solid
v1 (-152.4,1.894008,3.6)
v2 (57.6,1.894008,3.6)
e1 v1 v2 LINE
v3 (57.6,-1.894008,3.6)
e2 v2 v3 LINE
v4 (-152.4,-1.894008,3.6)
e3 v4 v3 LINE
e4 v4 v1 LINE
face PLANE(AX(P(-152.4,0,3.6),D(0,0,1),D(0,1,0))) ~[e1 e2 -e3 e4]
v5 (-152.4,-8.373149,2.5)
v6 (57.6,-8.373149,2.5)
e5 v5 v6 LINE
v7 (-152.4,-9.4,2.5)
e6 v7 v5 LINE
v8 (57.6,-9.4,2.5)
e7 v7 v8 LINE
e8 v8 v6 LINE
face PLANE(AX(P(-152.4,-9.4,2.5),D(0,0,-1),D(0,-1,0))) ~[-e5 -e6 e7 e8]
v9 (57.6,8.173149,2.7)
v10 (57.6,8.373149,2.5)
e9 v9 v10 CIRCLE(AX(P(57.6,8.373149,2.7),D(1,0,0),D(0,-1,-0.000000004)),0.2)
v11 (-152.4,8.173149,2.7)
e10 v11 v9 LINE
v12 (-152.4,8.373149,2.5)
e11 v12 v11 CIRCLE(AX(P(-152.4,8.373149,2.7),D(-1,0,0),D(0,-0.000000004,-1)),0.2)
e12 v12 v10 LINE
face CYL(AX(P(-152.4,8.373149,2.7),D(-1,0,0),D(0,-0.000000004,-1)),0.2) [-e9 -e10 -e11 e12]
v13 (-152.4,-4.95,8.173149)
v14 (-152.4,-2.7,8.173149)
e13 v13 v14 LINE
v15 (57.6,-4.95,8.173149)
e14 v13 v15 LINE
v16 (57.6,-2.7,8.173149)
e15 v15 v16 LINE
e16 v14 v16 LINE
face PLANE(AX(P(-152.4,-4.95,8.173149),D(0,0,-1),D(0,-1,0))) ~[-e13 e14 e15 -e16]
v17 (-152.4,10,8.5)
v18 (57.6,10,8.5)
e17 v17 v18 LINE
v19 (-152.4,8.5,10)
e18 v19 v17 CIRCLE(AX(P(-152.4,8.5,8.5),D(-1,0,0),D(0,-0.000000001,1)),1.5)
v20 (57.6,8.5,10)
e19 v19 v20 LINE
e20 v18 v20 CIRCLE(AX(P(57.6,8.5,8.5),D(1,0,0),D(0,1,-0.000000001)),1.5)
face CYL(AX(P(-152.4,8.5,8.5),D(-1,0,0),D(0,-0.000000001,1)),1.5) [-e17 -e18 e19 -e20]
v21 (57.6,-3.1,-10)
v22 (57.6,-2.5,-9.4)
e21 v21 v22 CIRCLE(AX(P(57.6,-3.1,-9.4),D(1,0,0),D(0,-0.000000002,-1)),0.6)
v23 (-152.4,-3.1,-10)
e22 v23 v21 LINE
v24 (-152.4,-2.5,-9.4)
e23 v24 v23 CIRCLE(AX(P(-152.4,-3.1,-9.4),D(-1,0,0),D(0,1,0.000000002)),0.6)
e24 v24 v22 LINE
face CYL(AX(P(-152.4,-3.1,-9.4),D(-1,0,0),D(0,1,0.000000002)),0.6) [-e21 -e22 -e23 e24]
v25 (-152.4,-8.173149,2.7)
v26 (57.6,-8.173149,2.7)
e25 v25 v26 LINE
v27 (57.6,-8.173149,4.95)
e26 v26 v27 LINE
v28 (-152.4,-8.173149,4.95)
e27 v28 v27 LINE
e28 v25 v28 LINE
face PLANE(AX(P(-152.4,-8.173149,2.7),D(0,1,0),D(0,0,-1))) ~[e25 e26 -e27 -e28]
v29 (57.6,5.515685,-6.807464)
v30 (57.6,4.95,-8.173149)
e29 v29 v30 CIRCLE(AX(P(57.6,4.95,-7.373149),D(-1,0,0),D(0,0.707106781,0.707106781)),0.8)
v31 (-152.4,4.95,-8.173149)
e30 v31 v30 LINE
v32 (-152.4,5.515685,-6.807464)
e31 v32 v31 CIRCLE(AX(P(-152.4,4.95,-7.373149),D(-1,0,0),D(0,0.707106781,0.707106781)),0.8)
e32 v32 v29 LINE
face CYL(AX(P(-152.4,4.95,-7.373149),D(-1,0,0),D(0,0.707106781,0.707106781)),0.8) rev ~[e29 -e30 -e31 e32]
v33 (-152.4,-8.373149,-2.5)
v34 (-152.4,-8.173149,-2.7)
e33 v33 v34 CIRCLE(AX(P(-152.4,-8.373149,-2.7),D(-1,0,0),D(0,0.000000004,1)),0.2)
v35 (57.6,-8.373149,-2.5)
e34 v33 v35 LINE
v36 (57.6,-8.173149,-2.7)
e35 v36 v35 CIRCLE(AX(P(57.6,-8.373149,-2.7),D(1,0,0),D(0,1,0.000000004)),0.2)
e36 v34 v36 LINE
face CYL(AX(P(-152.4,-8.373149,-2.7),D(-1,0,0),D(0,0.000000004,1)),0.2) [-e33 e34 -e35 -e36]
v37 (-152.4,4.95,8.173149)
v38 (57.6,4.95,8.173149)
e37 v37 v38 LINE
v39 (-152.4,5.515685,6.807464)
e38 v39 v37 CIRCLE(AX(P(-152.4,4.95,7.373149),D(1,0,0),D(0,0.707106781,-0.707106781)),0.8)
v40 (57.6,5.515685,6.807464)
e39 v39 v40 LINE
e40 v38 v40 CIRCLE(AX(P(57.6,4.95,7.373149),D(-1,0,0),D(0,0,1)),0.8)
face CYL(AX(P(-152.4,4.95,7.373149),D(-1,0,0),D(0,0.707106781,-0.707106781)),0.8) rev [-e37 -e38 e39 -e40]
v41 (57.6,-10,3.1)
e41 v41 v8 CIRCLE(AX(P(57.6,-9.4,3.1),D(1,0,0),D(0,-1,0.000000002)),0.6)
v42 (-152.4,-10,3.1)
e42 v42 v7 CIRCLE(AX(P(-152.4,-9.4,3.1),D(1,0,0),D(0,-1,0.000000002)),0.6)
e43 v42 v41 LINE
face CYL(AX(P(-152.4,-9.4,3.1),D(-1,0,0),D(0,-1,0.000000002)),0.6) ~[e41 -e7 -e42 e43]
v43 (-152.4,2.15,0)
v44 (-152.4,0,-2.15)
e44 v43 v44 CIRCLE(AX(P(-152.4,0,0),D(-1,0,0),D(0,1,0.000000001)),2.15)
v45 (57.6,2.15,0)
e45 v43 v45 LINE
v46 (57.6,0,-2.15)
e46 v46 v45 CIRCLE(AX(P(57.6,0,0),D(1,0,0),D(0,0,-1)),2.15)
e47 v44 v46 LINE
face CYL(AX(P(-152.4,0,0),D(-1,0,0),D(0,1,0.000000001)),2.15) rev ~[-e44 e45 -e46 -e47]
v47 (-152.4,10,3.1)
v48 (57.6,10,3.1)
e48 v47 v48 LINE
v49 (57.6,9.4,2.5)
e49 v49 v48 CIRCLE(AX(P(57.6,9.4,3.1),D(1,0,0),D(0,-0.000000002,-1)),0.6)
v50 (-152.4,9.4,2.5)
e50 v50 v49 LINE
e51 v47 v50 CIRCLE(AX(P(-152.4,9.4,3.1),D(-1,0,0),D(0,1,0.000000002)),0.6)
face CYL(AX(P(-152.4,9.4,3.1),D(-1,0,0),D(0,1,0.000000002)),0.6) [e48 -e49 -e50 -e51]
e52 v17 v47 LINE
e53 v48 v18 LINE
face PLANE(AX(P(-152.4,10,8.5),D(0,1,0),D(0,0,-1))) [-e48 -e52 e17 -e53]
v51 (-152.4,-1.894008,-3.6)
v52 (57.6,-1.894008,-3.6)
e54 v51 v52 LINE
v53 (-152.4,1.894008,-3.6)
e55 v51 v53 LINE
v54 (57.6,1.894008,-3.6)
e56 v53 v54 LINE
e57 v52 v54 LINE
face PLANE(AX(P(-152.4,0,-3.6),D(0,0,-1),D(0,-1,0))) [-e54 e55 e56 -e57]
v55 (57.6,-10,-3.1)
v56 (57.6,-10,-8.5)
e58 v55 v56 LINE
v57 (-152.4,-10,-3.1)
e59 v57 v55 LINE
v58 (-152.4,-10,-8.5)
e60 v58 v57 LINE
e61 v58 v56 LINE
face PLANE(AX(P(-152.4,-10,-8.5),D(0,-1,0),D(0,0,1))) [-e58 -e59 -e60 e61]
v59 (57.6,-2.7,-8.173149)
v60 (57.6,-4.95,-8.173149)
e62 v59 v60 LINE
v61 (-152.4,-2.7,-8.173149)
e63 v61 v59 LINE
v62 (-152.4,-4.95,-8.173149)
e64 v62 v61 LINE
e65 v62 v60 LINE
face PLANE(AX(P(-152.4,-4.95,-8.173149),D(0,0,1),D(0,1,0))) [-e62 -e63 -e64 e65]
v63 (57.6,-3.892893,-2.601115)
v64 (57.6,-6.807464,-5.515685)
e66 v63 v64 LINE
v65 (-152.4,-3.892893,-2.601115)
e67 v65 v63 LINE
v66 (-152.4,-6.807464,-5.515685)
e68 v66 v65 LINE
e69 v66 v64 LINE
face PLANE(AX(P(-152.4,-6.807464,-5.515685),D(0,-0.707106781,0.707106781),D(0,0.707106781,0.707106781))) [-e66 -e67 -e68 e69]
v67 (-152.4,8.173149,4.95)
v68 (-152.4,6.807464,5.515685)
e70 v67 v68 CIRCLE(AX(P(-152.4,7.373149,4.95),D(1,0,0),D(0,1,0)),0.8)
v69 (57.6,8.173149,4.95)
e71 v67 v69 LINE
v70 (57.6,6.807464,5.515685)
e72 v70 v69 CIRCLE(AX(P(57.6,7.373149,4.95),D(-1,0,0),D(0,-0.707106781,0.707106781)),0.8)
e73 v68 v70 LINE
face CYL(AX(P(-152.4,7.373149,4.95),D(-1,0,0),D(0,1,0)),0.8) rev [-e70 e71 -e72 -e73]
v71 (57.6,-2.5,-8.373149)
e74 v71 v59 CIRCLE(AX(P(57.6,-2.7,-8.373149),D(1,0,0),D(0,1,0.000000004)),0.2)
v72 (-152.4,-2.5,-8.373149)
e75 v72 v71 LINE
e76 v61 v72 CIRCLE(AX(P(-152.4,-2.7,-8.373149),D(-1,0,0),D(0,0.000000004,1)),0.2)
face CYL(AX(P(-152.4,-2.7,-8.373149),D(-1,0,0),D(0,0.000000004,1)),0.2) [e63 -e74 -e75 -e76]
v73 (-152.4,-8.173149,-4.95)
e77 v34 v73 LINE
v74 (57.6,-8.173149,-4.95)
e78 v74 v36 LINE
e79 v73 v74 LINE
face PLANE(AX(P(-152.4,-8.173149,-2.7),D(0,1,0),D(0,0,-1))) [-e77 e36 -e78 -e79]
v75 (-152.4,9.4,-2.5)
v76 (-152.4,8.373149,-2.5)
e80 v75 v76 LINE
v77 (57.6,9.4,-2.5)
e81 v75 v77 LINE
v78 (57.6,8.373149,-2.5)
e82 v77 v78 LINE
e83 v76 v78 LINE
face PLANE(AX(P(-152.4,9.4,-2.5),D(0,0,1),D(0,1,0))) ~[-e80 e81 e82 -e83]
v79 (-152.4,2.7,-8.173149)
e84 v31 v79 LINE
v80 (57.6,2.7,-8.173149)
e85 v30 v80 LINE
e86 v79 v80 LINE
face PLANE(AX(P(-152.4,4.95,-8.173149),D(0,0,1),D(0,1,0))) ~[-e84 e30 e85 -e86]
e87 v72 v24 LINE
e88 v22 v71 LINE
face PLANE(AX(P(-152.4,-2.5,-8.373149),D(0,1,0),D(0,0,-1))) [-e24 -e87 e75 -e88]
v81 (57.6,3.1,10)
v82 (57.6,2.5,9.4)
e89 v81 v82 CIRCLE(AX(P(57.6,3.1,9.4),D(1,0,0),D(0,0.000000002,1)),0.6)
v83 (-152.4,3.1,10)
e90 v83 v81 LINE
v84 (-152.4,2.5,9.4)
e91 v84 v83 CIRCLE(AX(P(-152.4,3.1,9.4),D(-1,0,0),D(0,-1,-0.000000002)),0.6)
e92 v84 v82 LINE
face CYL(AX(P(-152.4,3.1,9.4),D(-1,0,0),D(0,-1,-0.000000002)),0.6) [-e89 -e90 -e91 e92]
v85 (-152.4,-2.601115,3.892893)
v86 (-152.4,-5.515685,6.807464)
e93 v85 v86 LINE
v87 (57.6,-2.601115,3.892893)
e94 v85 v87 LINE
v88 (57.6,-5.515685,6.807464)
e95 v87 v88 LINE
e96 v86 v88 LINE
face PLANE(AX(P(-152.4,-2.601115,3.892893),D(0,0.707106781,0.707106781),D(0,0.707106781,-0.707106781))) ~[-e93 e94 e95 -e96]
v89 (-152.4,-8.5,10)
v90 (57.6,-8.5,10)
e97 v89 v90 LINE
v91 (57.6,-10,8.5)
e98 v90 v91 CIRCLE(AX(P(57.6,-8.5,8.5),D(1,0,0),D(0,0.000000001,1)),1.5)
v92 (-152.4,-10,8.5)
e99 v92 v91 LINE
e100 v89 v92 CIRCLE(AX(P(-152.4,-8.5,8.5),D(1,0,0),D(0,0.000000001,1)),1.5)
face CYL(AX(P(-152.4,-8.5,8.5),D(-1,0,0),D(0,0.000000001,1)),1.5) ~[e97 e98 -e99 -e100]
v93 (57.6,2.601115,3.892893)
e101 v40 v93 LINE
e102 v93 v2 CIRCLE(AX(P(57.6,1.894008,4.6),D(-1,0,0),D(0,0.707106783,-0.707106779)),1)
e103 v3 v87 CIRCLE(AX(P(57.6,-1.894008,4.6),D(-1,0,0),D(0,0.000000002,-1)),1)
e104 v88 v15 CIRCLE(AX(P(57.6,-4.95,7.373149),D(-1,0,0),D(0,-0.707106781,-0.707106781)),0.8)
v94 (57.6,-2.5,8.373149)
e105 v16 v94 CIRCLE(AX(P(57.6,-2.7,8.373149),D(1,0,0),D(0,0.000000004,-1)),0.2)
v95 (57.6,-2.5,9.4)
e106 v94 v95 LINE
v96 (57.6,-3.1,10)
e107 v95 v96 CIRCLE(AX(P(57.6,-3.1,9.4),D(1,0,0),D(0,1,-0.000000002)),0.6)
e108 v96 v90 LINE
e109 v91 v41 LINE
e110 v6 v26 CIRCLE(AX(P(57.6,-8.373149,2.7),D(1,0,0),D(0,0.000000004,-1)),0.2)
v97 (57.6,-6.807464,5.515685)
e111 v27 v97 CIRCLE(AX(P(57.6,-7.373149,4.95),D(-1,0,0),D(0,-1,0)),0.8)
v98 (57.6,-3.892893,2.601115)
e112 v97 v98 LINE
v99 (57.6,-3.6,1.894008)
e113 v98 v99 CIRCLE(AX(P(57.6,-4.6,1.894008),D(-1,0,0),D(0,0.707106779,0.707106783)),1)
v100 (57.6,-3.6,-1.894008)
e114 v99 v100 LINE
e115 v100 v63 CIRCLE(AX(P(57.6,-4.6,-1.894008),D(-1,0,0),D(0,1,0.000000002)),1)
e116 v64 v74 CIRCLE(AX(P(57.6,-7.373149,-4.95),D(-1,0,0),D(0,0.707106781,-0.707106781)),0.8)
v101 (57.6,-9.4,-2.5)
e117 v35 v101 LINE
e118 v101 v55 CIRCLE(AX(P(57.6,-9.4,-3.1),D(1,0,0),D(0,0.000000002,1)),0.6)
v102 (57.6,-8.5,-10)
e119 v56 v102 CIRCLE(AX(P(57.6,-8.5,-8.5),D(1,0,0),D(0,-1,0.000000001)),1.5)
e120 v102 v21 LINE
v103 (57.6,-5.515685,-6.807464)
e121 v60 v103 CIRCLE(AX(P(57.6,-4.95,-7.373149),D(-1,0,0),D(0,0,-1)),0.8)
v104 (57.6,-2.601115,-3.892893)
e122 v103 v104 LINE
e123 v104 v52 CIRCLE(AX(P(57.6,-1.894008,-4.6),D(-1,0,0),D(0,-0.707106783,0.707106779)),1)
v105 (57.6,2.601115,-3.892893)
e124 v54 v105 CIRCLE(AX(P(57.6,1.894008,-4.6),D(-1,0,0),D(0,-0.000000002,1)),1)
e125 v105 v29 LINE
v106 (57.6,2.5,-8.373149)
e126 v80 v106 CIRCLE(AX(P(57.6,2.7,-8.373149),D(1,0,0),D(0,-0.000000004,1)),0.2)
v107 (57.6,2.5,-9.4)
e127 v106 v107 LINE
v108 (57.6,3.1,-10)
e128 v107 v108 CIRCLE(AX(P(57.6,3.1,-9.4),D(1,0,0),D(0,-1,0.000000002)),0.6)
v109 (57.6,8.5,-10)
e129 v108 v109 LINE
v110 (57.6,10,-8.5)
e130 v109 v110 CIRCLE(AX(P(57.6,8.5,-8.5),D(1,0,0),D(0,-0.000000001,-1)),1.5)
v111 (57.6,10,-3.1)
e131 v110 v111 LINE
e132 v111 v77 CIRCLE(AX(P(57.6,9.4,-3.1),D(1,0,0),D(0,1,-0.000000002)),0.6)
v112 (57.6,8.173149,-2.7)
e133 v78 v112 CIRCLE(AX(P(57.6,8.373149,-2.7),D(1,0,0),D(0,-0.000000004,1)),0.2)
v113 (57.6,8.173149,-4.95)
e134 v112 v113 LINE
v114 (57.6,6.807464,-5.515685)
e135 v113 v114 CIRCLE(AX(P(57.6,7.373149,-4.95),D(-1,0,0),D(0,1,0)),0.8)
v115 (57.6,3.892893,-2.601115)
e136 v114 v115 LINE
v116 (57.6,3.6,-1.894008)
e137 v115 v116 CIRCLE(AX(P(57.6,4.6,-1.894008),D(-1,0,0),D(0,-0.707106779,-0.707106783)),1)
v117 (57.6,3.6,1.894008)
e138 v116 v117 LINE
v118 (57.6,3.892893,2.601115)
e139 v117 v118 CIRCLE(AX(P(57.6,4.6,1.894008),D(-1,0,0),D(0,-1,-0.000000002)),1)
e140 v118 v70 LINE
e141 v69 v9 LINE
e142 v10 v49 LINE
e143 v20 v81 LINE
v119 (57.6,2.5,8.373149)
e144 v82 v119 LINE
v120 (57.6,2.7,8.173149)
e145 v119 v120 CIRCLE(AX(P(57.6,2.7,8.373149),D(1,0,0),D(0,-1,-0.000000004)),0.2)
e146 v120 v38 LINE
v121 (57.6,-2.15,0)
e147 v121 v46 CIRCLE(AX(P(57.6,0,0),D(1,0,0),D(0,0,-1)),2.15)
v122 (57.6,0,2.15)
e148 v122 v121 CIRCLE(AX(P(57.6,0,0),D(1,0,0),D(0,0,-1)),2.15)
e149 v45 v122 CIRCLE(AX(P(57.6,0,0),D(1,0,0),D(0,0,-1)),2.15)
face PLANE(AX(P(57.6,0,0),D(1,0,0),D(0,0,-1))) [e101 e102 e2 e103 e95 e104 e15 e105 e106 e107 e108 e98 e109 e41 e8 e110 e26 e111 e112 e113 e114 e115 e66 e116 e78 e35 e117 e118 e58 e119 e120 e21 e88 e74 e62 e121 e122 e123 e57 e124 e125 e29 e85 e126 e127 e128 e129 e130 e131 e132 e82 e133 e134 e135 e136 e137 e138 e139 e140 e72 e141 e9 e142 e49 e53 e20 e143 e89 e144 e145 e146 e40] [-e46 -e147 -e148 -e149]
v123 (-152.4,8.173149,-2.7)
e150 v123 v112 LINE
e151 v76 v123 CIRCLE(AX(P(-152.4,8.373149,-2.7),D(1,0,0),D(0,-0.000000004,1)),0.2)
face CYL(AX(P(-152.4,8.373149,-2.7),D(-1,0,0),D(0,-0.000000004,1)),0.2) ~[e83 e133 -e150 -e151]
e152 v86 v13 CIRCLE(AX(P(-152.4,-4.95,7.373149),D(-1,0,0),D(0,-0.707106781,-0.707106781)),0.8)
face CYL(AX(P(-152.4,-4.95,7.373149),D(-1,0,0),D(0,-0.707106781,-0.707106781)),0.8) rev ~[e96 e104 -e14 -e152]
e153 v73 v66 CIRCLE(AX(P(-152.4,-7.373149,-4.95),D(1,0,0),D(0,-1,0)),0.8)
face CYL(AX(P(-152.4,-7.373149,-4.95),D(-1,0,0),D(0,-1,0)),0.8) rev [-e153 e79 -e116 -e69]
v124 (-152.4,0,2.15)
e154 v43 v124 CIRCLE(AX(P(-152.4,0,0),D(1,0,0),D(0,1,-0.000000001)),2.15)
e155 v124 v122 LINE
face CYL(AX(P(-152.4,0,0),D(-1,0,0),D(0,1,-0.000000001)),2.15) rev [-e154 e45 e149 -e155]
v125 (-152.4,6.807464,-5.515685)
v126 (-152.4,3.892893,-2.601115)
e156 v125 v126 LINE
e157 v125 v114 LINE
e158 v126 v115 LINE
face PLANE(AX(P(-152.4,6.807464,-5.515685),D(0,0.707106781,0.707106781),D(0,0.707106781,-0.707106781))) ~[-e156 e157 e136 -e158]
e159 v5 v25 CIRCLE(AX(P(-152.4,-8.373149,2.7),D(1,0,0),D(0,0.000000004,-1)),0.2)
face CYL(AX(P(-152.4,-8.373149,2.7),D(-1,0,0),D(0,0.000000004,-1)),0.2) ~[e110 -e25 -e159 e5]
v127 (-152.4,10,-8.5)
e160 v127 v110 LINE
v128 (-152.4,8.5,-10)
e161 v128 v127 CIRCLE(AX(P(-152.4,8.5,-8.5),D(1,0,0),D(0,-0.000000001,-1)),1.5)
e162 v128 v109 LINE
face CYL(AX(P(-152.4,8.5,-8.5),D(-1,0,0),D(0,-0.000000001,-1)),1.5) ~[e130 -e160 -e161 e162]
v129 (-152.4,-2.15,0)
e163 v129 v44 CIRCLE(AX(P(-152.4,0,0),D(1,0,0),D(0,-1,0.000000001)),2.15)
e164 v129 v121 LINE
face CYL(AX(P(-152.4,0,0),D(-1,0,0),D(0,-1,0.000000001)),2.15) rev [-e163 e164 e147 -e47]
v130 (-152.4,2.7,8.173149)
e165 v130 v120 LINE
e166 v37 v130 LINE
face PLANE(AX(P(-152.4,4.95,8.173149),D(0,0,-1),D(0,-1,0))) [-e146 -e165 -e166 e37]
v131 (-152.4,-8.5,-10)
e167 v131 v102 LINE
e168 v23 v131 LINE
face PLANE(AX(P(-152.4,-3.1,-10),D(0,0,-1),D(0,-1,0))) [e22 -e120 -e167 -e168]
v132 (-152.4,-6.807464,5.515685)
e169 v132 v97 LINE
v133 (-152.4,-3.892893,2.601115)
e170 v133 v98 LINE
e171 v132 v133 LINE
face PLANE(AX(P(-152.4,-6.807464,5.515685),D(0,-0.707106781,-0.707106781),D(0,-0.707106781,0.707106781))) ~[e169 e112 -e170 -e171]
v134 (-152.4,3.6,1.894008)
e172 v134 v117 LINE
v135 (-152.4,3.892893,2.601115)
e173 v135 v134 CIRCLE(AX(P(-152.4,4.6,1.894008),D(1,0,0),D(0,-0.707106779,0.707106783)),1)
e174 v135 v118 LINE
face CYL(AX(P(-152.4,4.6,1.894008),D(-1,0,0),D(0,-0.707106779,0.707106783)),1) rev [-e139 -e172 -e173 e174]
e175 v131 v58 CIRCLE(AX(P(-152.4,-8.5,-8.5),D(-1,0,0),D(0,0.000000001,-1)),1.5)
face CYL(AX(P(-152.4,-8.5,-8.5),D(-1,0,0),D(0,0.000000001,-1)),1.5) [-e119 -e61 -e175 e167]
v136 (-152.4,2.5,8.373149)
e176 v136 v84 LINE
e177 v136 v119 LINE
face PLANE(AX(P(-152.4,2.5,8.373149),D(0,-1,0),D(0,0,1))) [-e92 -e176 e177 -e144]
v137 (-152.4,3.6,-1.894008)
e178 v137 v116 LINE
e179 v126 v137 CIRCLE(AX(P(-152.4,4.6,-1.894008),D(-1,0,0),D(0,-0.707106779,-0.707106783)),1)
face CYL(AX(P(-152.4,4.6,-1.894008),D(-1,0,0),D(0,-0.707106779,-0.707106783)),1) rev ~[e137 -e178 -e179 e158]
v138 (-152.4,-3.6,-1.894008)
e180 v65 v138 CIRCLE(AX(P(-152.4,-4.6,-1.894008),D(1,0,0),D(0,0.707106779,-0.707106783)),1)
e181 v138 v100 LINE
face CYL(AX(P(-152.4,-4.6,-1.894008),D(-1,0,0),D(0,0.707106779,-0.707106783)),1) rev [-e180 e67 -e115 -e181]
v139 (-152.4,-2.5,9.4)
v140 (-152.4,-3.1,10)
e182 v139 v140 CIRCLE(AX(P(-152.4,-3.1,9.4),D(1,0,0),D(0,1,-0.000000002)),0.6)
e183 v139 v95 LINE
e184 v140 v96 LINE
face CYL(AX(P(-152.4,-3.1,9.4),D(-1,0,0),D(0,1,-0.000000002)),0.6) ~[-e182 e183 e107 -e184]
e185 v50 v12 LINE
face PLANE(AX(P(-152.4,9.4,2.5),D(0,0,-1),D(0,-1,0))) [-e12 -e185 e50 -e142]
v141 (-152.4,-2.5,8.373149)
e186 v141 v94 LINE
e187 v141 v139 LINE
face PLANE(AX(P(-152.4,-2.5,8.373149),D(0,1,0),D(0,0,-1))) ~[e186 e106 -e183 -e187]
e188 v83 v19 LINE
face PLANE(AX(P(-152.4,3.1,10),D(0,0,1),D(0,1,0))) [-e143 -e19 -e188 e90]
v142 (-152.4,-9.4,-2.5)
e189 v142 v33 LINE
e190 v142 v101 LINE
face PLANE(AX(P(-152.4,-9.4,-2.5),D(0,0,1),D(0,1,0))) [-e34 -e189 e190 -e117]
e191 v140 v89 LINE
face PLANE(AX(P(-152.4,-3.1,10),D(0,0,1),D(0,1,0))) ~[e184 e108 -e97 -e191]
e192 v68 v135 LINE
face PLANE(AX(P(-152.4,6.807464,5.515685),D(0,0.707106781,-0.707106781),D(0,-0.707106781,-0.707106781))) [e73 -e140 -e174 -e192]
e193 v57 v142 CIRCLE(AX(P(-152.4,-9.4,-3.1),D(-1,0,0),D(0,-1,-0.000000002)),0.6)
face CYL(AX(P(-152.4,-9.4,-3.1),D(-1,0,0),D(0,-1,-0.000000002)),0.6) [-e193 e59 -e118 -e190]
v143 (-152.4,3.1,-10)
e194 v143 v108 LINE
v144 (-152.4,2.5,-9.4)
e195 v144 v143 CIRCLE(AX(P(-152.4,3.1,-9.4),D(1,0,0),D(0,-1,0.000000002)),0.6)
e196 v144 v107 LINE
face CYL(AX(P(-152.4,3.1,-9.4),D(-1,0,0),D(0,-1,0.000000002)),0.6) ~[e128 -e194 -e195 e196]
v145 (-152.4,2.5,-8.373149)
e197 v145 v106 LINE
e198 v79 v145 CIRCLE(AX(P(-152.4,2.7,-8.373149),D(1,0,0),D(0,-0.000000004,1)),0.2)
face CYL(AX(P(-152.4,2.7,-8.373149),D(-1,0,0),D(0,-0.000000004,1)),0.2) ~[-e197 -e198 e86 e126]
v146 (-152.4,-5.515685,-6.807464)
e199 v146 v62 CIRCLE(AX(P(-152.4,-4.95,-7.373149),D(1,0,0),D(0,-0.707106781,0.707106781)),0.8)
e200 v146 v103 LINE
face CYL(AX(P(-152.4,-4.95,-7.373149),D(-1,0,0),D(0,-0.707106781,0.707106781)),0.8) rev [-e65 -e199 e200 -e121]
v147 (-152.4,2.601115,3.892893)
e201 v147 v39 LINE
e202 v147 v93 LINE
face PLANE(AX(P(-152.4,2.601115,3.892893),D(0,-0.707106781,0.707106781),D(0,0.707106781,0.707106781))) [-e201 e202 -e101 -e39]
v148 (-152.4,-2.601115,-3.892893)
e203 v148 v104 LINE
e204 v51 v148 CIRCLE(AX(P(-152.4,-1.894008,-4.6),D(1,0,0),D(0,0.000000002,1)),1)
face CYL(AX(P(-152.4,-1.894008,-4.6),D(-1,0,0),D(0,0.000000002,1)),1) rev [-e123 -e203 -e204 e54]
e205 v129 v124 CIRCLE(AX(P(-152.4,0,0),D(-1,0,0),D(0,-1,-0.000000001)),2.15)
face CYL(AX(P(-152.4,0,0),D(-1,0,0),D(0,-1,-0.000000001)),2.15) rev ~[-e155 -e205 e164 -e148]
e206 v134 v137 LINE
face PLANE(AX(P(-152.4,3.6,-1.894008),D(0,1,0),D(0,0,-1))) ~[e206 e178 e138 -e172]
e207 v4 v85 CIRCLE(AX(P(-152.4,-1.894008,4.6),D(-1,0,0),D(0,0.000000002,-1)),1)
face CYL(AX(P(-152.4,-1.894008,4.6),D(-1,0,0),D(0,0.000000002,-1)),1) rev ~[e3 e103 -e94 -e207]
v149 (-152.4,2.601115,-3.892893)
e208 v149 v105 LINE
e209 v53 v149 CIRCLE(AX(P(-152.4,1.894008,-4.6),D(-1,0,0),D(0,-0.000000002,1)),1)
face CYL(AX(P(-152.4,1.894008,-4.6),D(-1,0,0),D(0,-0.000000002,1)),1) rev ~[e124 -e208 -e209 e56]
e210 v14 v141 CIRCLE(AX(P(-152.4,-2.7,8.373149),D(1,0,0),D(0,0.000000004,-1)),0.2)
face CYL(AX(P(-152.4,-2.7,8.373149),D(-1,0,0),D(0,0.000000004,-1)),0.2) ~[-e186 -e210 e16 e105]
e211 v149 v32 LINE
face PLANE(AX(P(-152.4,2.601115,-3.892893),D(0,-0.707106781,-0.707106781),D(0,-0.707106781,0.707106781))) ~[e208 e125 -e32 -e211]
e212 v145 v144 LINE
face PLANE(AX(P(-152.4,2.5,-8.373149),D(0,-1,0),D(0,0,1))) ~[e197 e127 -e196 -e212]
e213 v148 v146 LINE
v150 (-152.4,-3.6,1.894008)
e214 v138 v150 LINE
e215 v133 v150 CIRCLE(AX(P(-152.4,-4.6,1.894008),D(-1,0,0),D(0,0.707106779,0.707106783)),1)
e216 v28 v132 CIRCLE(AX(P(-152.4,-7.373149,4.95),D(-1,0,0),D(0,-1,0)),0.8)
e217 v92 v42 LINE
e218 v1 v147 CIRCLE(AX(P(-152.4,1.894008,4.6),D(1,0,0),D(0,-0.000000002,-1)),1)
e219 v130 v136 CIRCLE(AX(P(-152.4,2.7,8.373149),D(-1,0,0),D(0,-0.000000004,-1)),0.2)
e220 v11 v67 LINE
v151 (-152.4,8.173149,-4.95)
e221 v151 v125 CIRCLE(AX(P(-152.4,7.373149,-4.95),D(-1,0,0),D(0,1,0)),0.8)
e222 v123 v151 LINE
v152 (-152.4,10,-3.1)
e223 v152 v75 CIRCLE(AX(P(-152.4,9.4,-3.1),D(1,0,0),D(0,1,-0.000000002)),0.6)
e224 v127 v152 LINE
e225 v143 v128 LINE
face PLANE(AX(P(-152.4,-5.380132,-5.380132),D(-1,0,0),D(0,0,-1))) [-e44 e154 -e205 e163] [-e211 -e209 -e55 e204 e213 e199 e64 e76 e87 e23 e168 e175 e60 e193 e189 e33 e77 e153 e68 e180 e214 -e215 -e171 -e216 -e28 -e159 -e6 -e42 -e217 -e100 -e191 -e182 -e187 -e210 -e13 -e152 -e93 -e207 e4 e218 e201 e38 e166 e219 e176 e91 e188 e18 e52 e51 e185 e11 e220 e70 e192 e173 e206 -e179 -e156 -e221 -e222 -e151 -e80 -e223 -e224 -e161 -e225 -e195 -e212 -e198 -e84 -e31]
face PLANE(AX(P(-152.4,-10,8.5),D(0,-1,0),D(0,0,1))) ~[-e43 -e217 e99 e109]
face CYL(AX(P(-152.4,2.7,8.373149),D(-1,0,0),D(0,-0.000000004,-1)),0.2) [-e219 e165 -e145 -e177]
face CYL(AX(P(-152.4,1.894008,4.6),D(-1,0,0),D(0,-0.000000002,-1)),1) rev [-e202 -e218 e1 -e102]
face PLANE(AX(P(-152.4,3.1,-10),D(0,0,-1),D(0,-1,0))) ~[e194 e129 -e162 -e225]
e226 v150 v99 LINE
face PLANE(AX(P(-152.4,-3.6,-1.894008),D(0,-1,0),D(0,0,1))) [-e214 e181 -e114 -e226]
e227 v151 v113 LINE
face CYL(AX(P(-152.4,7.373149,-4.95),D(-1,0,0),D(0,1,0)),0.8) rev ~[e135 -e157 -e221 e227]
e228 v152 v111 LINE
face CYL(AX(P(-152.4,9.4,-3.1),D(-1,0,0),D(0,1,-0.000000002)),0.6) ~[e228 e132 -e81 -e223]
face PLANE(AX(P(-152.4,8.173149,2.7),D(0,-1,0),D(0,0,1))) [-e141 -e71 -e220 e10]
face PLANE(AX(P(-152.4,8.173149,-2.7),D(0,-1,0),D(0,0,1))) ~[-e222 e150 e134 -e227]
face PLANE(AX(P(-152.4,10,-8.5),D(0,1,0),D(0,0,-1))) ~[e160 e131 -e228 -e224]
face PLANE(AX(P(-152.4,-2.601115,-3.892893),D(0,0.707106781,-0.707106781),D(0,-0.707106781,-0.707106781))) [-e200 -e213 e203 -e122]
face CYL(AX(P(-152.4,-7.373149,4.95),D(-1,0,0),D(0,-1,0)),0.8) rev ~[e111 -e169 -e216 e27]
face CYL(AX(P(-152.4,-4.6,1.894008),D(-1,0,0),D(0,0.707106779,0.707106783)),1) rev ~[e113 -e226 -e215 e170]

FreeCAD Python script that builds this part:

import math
import FreeCAD as App
import Part
import Sketcher
Q = App.Units.Quantity

doc = App.newDocument("Part")
body = doc.addObject("PartDesign::Body", "Body")

sketch1 = body.newObject("Sketcher::SketchObject", "Sketch")
sketch1.AttachmentSupport = (doc.getObject("YZ_Plane"), [""])
sketch1.MapMode = "FlatFace"
sketch1.addGeometry([
    Part.LineSegment(App.Vector(3.89, 2.6, 0), App.Vector(6.81, 5.52, 0)),
    Part.ArcOfCircle(Part.Circle(App.Vector(7.37, 4.95, 0), App.Vector(0, 0, 1), 0.8), math.radians(0), math.radians(135)),
    Part.LineSegment(App.Vector(8.17, 4.95, 0), App.Vector(8.17, 2.7, 0)),
    Part.ArcOfCircle(Part.Circle(App.Vector(8.37, 2.7, 0), App.Vector(0, 0, 1), 0.2), math.radians(-180), math.radians(-90)),
    Part.LineSegment(App.Vector(8.37, 2.5, 0), App.Vector(9.4, 2.5, 0)),
    Part.ArcOfCircle(Part.Circle(App.Vector(9.4, 3.1, 0), App.Vector(0, 0, 1), 0.6), math.radians(-90), math.radians(0)),
    Part.LineSegment(App.Vector(10, 3.1, 0), App.Vector(10, 8.5, 0)),
    Part.ArcOfCircle(Part.Circle(App.Vector(8.5, 8.5, 0), App.Vector(0, 0, 1), 1.5), math.radians(0), math.radians(90)),
    Part.LineSegment(App.Vector(8.5, 10, 0), App.Vector(3.1, 10, 0)),
    Part.ArcOfCircle(Part.Circle(App.Vector(3.1, 9.4, 0), App.Vector(0, 0, 1), 0.6), math.radians(90), math.radians(180)),
    Part.LineSegment(App.Vector(2.5, 9.4, 0), App.Vector(2.5, 8.37, 0)),
    Part.ArcOfCircle(Part.Circle(App.Vector(2.7, 8.37, 0), App.Vector(0, 0, 1), 0.2), math.radians(-180), math.radians(-90)),
    Part.LineSegment(App.Vector(2.7, 8.17, 0), App.Vector(4.95, 8.17, 0)),
    Part.ArcOfCircle(Part.Circle(App.Vector(4.95, 7.37, 0), App.Vector(0, 0, 1), 0.8), math.radians(-45), math.radians(90)),
    Part.LineSegment(App.Vector(5.52, 6.81, 0), App.Vector(2.6, 3.89, 0)),
    Part.ArcOfCircle(Part.Circle(App.Vector(1.89, 4.6, 0), App.Vector(0, 0, 1), 1), math.radians(-90), math.radians(-45)),
    Part.LineSegment(App.Vector(1.89, 3.6, 0), App.Vector(0, 3.6, 0)),
    Part.LineSegment(App.Vector(0, 3.6, 0), App.Vector(0, 2.15, 0)),
    Part.ArcOfCircle(Part.Circle(App.Vector(0, 0, 0), App.Vector(0, 0, 1), 2.15), math.radians(0), math.radians(90)),
    Part.LineSegment(App.Vector(2.15, 0, 0), App.Vector(3.6, 0, 0)),
    Part.LineSegment(App.Vector(3.6, 0, 0), App.Vector(3.6, 1.89, 0)),
    Part.ArcOfCircle(Part.Circle(App.Vector(4.6, 1.89, 0), App.Vector(0, 0, 1), 1), math.radians(135), math.radians(180)),
], False)
sketch1.addConstraint([
    Sketcher.Constraint("Tangent", 0, 2, 1, 2),
    Sketcher.Constraint("Tangent", 1, 1, 2, 1),
    Sketcher.Constraint("Tangent", 2, 2, 3, 1),
    Sketcher.Constraint("Tangent", 3, 2, 4, 1),
    Sketcher.Constraint("Tangent", 4, 2, 5, 1),
    Sketcher.Constraint("Tangent", 5, 2, 6, 1),
    Sketcher.Constraint("Tangent", 6, 2, 7, 1),
    Sketcher.Constraint("Tangent", 7, 2, 8, 1),
    Sketcher.Constraint("Tangent", 8, 2, 9, 1),
    Sketcher.Constraint("Tangent", 9, 2, 10, 1),
    Sketcher.Constraint("Tangent", 10, 2, 11, 1),
    Sketcher.Constraint("Tangent", 11, 2, 12, 1),
    Sketcher.Constraint("Tangent", 12, 2, 13, 2),
    Sketcher.Constraint("Tangent", 13, 1, 14, 1),
    Sketcher.Constraint("Tangent", 14, 2, 15, 2),
    Sketcher.Constraint("Tangent", 15, 1, 16, 1),
    Sketcher.Constraint("Coincident", 16, 2, 17, 1),
    Sketcher.Constraint("Coincident", 17, 2, 18, 2),
    Sketcher.Constraint("Coincident", 18, 1, 19, 1),
    Sketcher.Constraint("Coincident", 19, 2, 20, 1),
    Sketcher.Constraint("Tangent", 20, 2, 21, 2),
    Sketcher.Constraint("Tangent", 21, 1, 0, 1),
    Sketcher.Constraint("Vertical", 2),
    Sketcher.Constraint("Horizontal", 4),
    Sketcher.Constraint("Vertical", 6),
    Sketcher.Constraint("Horizontal", 8),
    Sketcher.Constraint("Vertical", 10),
    Sketcher.Constraint("Horizontal", 12),
    Sketcher.Constraint("Horizontal", 16),
    Sketcher.Constraint("Vertical", 17),
    Sketcher.Constraint("Horizontal", 19),
    Sketcher.Constraint("Vertical", 20),
    Sketcher.Constraint("Coincident", 18, 3, -1, 1),
    Sketcher.Constraint("Equal", 5, 9),
    Sketcher.Constraint("Equal", 3, 11),
    Sketcher.Constraint("Equal", 1, 13),
    Sketcher.Constraint("Equal", 15, 21),
    Sketcher.Constraint("PointOnObject", 16, 2, -2),
    Sketcher.Constraint("PointOnObject", 18, 1, -1),
    Sketcher.Constraint("Parallel", 0, 14),
    Sketcher.Constraint("Equal", 12, 2),
    Sketcher.Constraint("Equal", 8, 6),
    Sketcher.Constraint("Equal", 4, 10),
    Sketcher.Constraint("Equal", 19, 17),
    Sketcher.Constraint("Equal", 16, 20),
    Sketcher.Constraint("Equal", 0, 14),
    Sketcher.Constraint("Radius", 15, Q("1 mm")),
    Sketcher.Constraint("Radius", 1, Q("0.8 mm")),
    Sketcher.Constraint("Radius", 3, Q("0.2 mm")),
    Sketcher.Constraint("Radius", 5, Q("0.6 mm")),
    Sketcher.Constraint("Radius", 7, Q("1.5 mm")),
    Sketcher.Constraint("Radius", 18, Q("2.15 mm")),
    Sketcher.Constraint("DistanceX", 8, 2, 8, 1, Q("5.4 mm")),
    Sketcher.Constraint("DistanceX", -1, 1, 5, 2, Q("10 mm")),
    Sketcher.Constraint("DistanceX", 12, 1, 12, 2, Q("2.25 mm")),
    Sketcher.Constraint("DistanceX", 19, 1, 19, 2, Q("1.45 mm")),
    Sketcher.Constraint("DistanceX", 4, 1, 4, 2, Q("1.026851 mm")),
])
pad1 = body.newObject("PartDesign::Pad", "Pad")
pad1.Profile = sketch1
pad1.Type = "TwoLengths"
pad1.Length = 152.4
pad1.Length2 = 152.4
body2 = doc.addObject("PartDesign::Body", "Body001")
doc.recompute()

body2.BaseFeature = body
doc.recompute()

mirroring = doc.addObject("Part::Mirroring", "Mirroring")
mirroring.Source = body
mirroring.Base = App.Vector(0, 0, 0)
mirroring.Normal = App.Vector(0, 1, 0)
body3 = doc.addObject("PartDesign::Body", "Body002")
body3.BaseFeature = mirroring
boolean = body2.newObject("PartDesign::Boolean", "Boolean")
boolean.Type = "Fuse"
boolean.addObjects([body3])
doc.recompute()
body4 = doc.addObject("PartDesign::Body", "Body003")
doc.recompute()

body4.BaseFeature = body2
doc.recompute()

mirroring2 = doc.addObject("Part::Mirroring", "Mirroring001")
mirroring2.Source = body2
mirroring2.Base = App.Vector(0, 0, 0)
mirroring2.Normal = App.Vector(0, 0, 1)
body5 = doc.addObject("PartDesign::Body", "Body004")
body5.BaseFeature = mirroring2
boolean2 = body4.newObject("PartDesign::Boolean", "Boolean001")
boolean2.Type = "Fuse"
boolean2.addObjects([body5])
doc.recompute()

sketch2 = body4.newObject("Sketcher::SketchObject", "Sketch001")
sketch2.AttachmentSupport = (doc.getObject("YZ_Plane003"), [""])
sketch2.MapMode = "FlatFace"
sketch2.AttachmentOffset = App.Placement(App.Vector(0, 0, 57.6), App.Rotation())
sketch2.addGeometry([
    Part.LineSegment(App.Vector(3.6, -1.89, 0), App.Vector(3.6, 1.89, 0)),
    Part.ArcOfCircle(Part.Circle(App.Vector(4.6, 1.89, 0), App.Vector(0, 0, 1), 1), math.radians(135), math.radians(180)),
    Part.LineSegment(App.Vector(3.89, 2.6, 0), App.Vector(6.81, 5.52, 0)),
    Part.ArcOfCircle(Part.Circle(App.Vector(7.37, 4.95, 0), App.Vector(0, 0, 1), 0.8), math.radians(0), math.radians(135)),
    Part.LineSegment(App.Vector(8.17, 4.95, 0), App.Vector(8.17, 2.7, 0)),
    Part.ArcOfCircle(Part.Circle(App.Vector(8.37, 2.7, 0), App.Vector(0, 0, 1), 0.2), math.radians(-180), math.radians(-90)),
    Part.LineSegment(App.Vector(8.37, 2.5, 0), App.Vector(9.4, 2.5, 0)),
    Part.ArcOfCircle(Part.Circle(App.Vector(9.4, 3.1, 0), App.Vector(0, 0, 1), 0.6), math.radians(-90), math.radians(0)),
    Part.LineSegment(App.Vector(10, 3.1, 0), App.Vector(10, 8.5, 0)),
    Part.ArcOfCircle(Part.Circle(App.Vector(8.5, 8.5, 0), App.Vector(0, 0, 1), 1.5), math.radians(0), math.radians(90)),
    Part.LineSegment(App.Vector(8.5, 10, 0), App.Vector(3.1, 10, 0)),
    Part.ArcOfCircle(Part.Circle(App.Vector(3.1, 9.4, 0), App.Vector(0, 0, 1), 0.6), math.radians(90), math.radians(180)),
    Part.LineSegment(App.Vector(2.5, 9.4, 0), App.Vector(2.5, 8.37, 0)),
    Part.ArcOfCircle(Part.Circle(App.Vector(2.7, 8.37, 0), App.Vector(0, 0, 1), 0.2), math.radians(-180), math.radians(-90)),
    Part.LineSegment(App.Vector(2.7, 8.17, 0), App.Vector(4.95, 8.17, 0)),
    Part.ArcOfCircle(Part.Circle(App.Vector(4.95, 7.37, 0), App.Vector(0, 0, 1), 0.8), math.radians(-45), math.radians(90)),
    Part.LineSegment(App.Vector(5.52, 6.81, 0), App.Vector(2.6, 3.89, 0)),
    Part.ArcOfCircle(Part.Circle(App.Vector(1.89, 4.6, 0), App.Vector(0, 0, 1), 1), math.radians(-90), math.radians(-45)),
    Part.LineSegment(App.Vector(1.89, 3.6, 0), App.Vector(-1.89, 3.6, 0)),
    Part.ArcOfCircle(Part.Circle(App.Vector(-1.89, 4.6, 0), App.Vector(0, 0, 1), 1), math.radians(-135), math.radians(-90)),
    Part.LineSegment(App.Vector(-2.6, 3.89, 0), App.Vector(-5.52, 6.81, 0)),
    Part.ArcOfCircle(Part.Circle(App.Vector(-4.95, 7.37, 0), App.Vector(0, 0, 1), 0.8), math.radians(90), math.radians(225)),
    Part.LineSegment(App.Vector(-4.95, 8.17, 0), App.Vector(-2.7, 8.17, 0)),
    Part.ArcOfCircle(Part.Circle(App.Vector(-2.7, 8.37, 0), App.Vector(0, 0, 1), 0.2), math.radians(-90), math.radians(0)),
    Part.LineSegment(App.Vector(-2.5, 8.37, 0), App.Vector(-2.5, 9.4, 0)),
    Part.ArcOfCircle(Part.Circle(App.Vector(-3.1, 9.4, 0), App.Vector(0, 0, 1), 0.6), math.radians(0), math.radians(90)),
    Part.LineSegment(App.Vector(-3.1, 10, 0), App.Vector(-8.5, 10, 0)),
    Part.ArcOfCircle(Part.Circle(App.Vector(-8.5, 8.5, 0), App.Vector(0, 0, 1), 1.5), math.radians(90), math.radians(180)),
    Part.LineSegment(App.Vector(-10, 8.5, 0), App.Vector(-10, 3.1, 0)),
    Part.ArcOfCircle(Part.Circle(App.Vector(-9.4, 3.1, 0), App.Vector(0, 0, 1), 0.6), math.radians(180), math.radians(270)),
    Part.LineSegment(App.Vector(-9.4, 2.5, 0), App.Vector(-8.37, 2.5, 0)),
    Part.ArcOfCircle(Part.Circle(App.Vector(-8.37, 2.7, 0), App.Vector(0, 0, 1), 0.2), math.radians(-90), math.radians(0)),
    Part.LineSegment(App.Vector(-8.17, 2.7, 0), App.Vector(-8.17, 4.95, 0)),
    Part.ArcOfCircle(Part.Circle(App.Vector(-7.37, 4.95, 0), App.Vector(0, 0, 1), 0.8), math.radians(45), math.radians(180)),
    Part.LineSegment(App.Vector(-6.81, 5.52, 0), App.Vector(-3.89, 2.6, 0)),
    Part.ArcOfCircle(Part.Circle(App.Vector(-4.6, 1.89, 0), App.Vector(0, 0, 1), 1), math.radians(0), math.radians(45)),
    Part.LineSegment(App.Vector(-3.6, 1.89, 0), App.Vector(-3.6, -1.89, 0)),
    Part.ArcOfCircle(Part.Circle(App.Vector(-4.6, -1.89, 0), App.Vector(0, 0, 1), 1), math.radians(-45), math.radians(0)),
    Part.LineSegment(App.Vector(-3.89, -2.6, 0), App.Vector(-6.81, -5.52, 0)),
    Part.ArcOfCircle(Part.Circle(App.Vector(-7.37, -4.95, 0), App.Vector(0, 0, 1), 0.8), math.radians(180), math.radians(315)),
    Part.LineSegment(App.Vector(-8.17, -4.95, 0), App.Vector(-8.17, -2.7, 0)),
    Part.ArcOfCircle(Part.Circle(App.Vector(-8.37, -2.7, 0), App.Vector(0, 0, 1), 0.2), math.radians(0), math.radians(90)),
    Part.LineSegment(App.Vector(-8.37, -2.5, 0), App.Vector(-9.4, -2.5, 0)),
    Part.ArcOfCircle(Part.Circle(App.Vector(-9.4, -3.1, 0), App.Vector(0, 0, 1), 0.6), math.radians(90), math.radians(180)),
    Part.LineSegment(App.Vector(-10, -3.1, 0), App.Vector(-10, -8.5, 0)),
    Part.ArcOfCircle(Part.Circle(App.Vector(-8.5, -8.5, 0), App.Vector(0, 0, 1), 1.5), math.radians(180), math.radians(270)),
    Part.LineSegment(App.Vector(-8.5, -10, 0), App.Vector(-3.1, -10, 0)),
    Part.ArcOfCircle(Part.Circle(App.Vector(-3.1, -9.4, 0), App.Vector(0, 0, 1), 0.6), math.radians(-90), math.radians(0)),
    Part.LineSegment(App.Vector(-2.5, -9.4, 0), App.Vector(-2.5, -8.37, 0)),
    Part.ArcOfCircle(Part.Circle(App.Vector(-2.7, -8.37, 0), App.Vector(0, 0, 1), 0.2), math.radians(0), math.radians(90)),
    Part.LineSegment(App.Vector(-2.7, -8.17, 0), App.Vector(-4.95, -8.17, 0)),
    Part.ArcOfCircle(Part.Circle(App.Vector(-4.95, -7.37, 0), App.Vector(0, 0, 1), 0.8), math.radians(135), math.radians(270)),
    Part.LineSegment(App.Vector(-5.52, -6.81, 0), App.Vector(-2.6, -3.89, 0)),
    Part.ArcOfCircle(Part.Circle(App.Vector(-1.89, -4.6, 0), App.Vector(0, 0, 1), 1), math.radians(90), math.radians(135)),
    Part.LineSegment(App.Vector(-1.89, -3.6, 0), App.Vector(1.89, -3.6, 0)),
    Part.ArcOfCircle(Part.Circle(App.Vector(1.89, -4.6, 0), App.Vector(0, 0, 1), 1), math.radians(45), math.radians(90)),
    Part.LineSegment(App.Vector(2.6, -3.89, 0), App.Vector(5.52, -6.81, 0)),
    Part.ArcOfCircle(Part.Circle(App.Vector(4.95, -7.37, 0), App.Vector(0, 0, 1), 0.8), math.radians(-90), math.radians(45)),
    Part.LineSegment(App.Vector(4.95, -8.17, 0), App.Vector(2.7, -8.17, 0)),
    Part.ArcOfCircle(Part.Circle(App.Vector(2.7, -8.37, 0), App.Vector(0, 0, 1), 0.2), math.radians(90), math.radians(180)),
    Part.LineSegment(App.Vector(2.5, -8.37, 0), App.Vector(2.5, -9.4, 0)),
    Part.ArcOfCircle(Part.Circle(App.Vector(3.1, -9.4, 0), App.Vector(0, 0, 1), 0.6), math.radians(180), math.radians(270)),
    Part.LineSegment(App.Vector(3.1, -10, 0), App.Vector(8.5, -10, 0)),
    Part.ArcOfCircle(Part.Circle(App.Vector(8.5, -8.5, 0), App.Vector(0, 0, 1), 1.5), math.radians(-90), math.radians(0)),
    Part.LineSegment(App.Vector(10, -8.5, 0), App.Vector(10, -3.1, 0)),
    Part.ArcOfCircle(Part.Circle(App.Vector(9.4, -3.1, 0), App.Vector(0, 0, 1), 0.6), math.radians(0), math.radians(90)),
    Part.LineSegment(App.Vector(9.4, -2.5, 0), App.Vector(8.37, -2.5, 0)),
    Part.ArcOfCircle(Part.Circle(App.Vector(8.37, -2.7, 0), App.Vector(0, 0, 1), 0.2), math.radians(90), math.radians(180)),
    Part.LineSegment(App.Vector(8.17, -2.7, 0), App.Vector(8.17, -4.95, 0)),
    Part.ArcOfCircle(Part.Circle(App.Vector(7.37, -4.95, 0), App.Vector(0, 0, 1), 0.8), math.radians(-135), math.radians(0)),
    Part.LineSegment(App.Vector(6.81, -5.52, 0), App.Vector(3.89, -2.6, 0)),
    Part.ArcOfCircle(Part.Circle(App.Vector(4.6, -1.89, 0), App.Vector(0, 0, 1), 1), math.radians(180), math.radians(225)),
    Part.Circle(App.Vector(0, 0, 0), App.Vector(0, 0, 1), 2.15),
], False)
sketch2.addConstraint([
    Sketcher.Constraint("Tangent", 0, 2, 1, 2),
    Sketcher.Constraint("Tangent", 1, 1, 2, 1),
    Sketcher.Constraint("Tangent", 2, 2, 3, 2),
    Sketcher.Constraint("Tangent", 3, 1, 4, 1),
    Sketcher.Constraint("Tangent", 4, 2, 5, 1),
    Sketcher.Constraint("Tangent", 5, 2, 6, 1),
    Sketcher.Constraint("Tangent", 6, 2, 7, 1),
    Sketcher.Constraint("Tangent", 7, 2, 8, 1),
    Sketcher.Constraint("Tangent", 8, 2, 9, 1),
    Sketcher.Constraint("Tangent", 9, 2, 10, 1),
    Sketcher.Constraint("Tangent", 10, 2, 11, 1),
    Sketcher.Constraint("Tangent", 11, 2, 12, 1),
    Sketcher.Constraint("Tangent", 12, 2, 13, 1),
    Sketcher.Constraint("Tangent", 13, 2, 14, 1),
    Sketcher.Constraint("Tangent", 14, 2, 15, 2),
    Sketcher.Constraint("Tangent", 15, 1, 16, 1),
    Sketcher.Constraint("Tangent", 16, 2, 17, 2),
    Sketcher.Constraint("Tangent", 17, 1, 18, 1),
    Sketcher.Constraint("Tangent", 18, 2, 19, 2),
    Sketcher.Constraint("Tangent", 19, 1, 20, 1),
    Sketcher.Constraint("Tangent", 20, 2, 21, 2),
    Sketcher.Constraint("Tangent", 21, 1, 22, 1),
    Sketcher.Constraint("Tangent", 22, 2, 23, 1),
    Sketcher.Constraint("Tangent", 23, 2, 24, 1),
    Sketcher.Constraint("Tangent", 24, 2, 25, 1),
    Sketcher.Constraint("Tangent", 25, 2, 26, 1),
    Sketcher.Constraint("Tangent", 26, 2, 27, 1),
    Sketcher.Constraint("Tangent", 27, 2, 28, 1),
    Sketcher.Constraint("Tangent", 28, 2, 29, 1),
    Sketcher.Constraint("Tangent", 29, 2, 30, 1),
    Sketcher.Constraint("Tangent", 30, 2, 31, 1),
    Sketcher.Constraint("Tangent", 31, 2, 32, 1),
    Sketcher.Constraint("Tangent", 32, 2, 33, 2),
    Sketcher.Constraint("Tangent", 33, 1, 34, 1),
    Sketcher.Constraint("Tangent", 34, 2, 35, 2),
    Sketcher.Constraint("Tangent", 35, 1, 36, 1),
    Sketcher.Constraint("Tangent", 36, 2, 37, 2),
    Sketcher.Constraint("Tangent", 37, 1, 38, 1),
    Sketcher.Constraint("Tangent", 38, 2, 39, 2),
    Sketcher.Constraint("Tangent", 39, 1, 40, 1),
    Sketcher.Constraint("Tangent", 40, 2, 41, 1),
    Sketcher.Constraint("Tangent", 41, 2, 42, 1),
    Sketcher.Constraint("Tangent", 42, 2, 43, 1),
    Sketcher.Constraint("Tangent", 43, 2, 44, 1),
    Sketcher.Constraint("Tangent", 44, 2, 45, 1),
    Sketcher.Constraint("Tangent", 45, 2, 46, 1),
    Sketcher.Constraint("Tangent", 46, 2, 47, 1),
    Sketcher.Constraint("Tangent", 47, 2, 48, 1),
    Sketcher.Constraint("Tangent", 48, 2, 49, 1),
    Sketcher.Constraint("Tangent", 49, 2, 50, 1),
    Sketcher.Constraint("Tangent", 50, 2, 51, 2),
    Sketcher.Constraint("Tangent", 51, 1, 52, 1),
    Sketcher.Constraint("Tangent", 52, 2, 53, 2),
    Sketcher.Constraint("Tangent", 53, 1, 54, 1),
    Sketcher.Constraint("Tangent", 54, 2, 55, 2),
    Sketcher.Constraint("Tangent", 55, 1, 56, 1),
    Sketcher.Constraint("Tangent", 56, 2, 57, 2),
    Sketcher.Constraint("Tangent", 57, 1, 58, 1),
    Sketcher.Constraint("Tangent", 58, 2, 59, 1),
    Sketcher.Constraint("Tangent", 59, 2, 60, 1),
    Sketcher.Constraint("Tangent", 60, 2, 61, 1),
    Sketcher.Constraint("Tangent", 61, 2, 62, 1),
    Sketcher.Constraint("Tangent", 62, 2, 63, 1),
    Sketcher.Constraint("Tangent", 63, 2, 64, 1),
    Sketcher.Constraint("Tangent", 64, 2, 65, 1),
    Sketcher.Constraint("Tangent", 65, 2, 66, 1),
    Sketcher.Constraint("Tangent", 66, 2, 67, 1),
    Sketcher.Constraint("Tangent", 67, 2, 68, 1),
    Sketcher.Constraint("Tangent", 68, 2, 69, 2),
    Sketcher.Constraint("Tangent", 69, 1, 70, 1),
    Sketcher.Constraint("Tangent", 70, 2, 71, 2),
    Sketcher.Constraint("Tangent", 71, 1, 0, 1),
    Sketcher.Constraint("Vertical", 0),
    Sketcher.Constraint("Vertical", 4),
    Sketcher.Constraint("Horizontal", 6),
    Sketcher.Constraint("Vertical", 8),
    Sketcher.Constraint("Horizontal", 10),
    Sketcher.Constraint("Vertical", 12),
    Sketcher.Constraint("Horizontal", 14),
    Sketcher.Constraint("Horizontal", 18),
    Sketcher.Constraint("Horizontal", 22),
    Sketcher.Constraint("Vertical", 24),
    Sketcher.Constraint("Horizontal", 26),
    Sketcher.Constraint("Vertical", 28),
    Sketcher.Constraint("Horizontal", 30),
    Sketcher.Constraint("Vertical", 32),
    Sketcher.Constraint("Vertical", 36),
    Sketcher.Constraint("Vertical", 40),
    Sketcher.Constraint("Horizontal", 42),
    Sketcher.Constraint("Vertical", 44),
    Sketcher.Constraint("Horizontal", 46),
    Sketcher.Constraint("Vertical", 48),
    Sketcher.Constraint("Horizontal", 50),
    Sketcher.Constraint("Horizontal", 54),
    Sketcher.Constraint("Horizontal", 58),
    Sketcher.Constraint("Vertical", 60),
    Sketcher.Constraint("Horizontal", 62),
    Sketcher.Constraint("Vertical", 64),
    Sketcher.Constraint("Horizontal", 66),
    Sketcher.Constraint("Vertical", 68),
    Sketcher.Constraint("Coincident", 72, 3, -1, 1),
    Sketcher.Constraint("Equal", 7, 11),
    Sketcher.Constraint("Equal", 5, 13),
    Sketcher.Constraint("Equal", 3, 15),
    Sketcher.Constraint("Equal", 1, 17),
    Sketcher.Constraint("Equal", 17, 19),
    Sketcher.Constraint("Equal", 15, 21),
    Sketcher.Constraint("Equal", 13, 23),
    Sketcher.Constraint("Equal", 11, 25),
    Sketcher.Constraint("Equal", 9, 27),
    Sketcher.Constraint("Equal", 25, 29),
    Sketcher.Constraint("Equal", 23, 31),
    Sketcher.Constraint("Equal", 21, 33),
    Sketcher.Constraint("Equal", 19, 35),
    Sketcher.Constraint("Equal", 35, 37),
    Sketcher.Constraint("Equal", 33, 39),
    Sketcher.Constraint("Equal", 31, 41),
    Sketcher.Constraint("Equal", 29, 43),
    Sketcher.Constraint("Equal", 27, 45),
    Sketcher.Constraint("Equal", 43, 47),
    Sketcher.Constraint("Equal", 41, 49),
    Sketcher.Constraint("Equal", 39, 51),
    Sketcher.Constraint("Equal", 37, 53),
    Sketcher.Constraint("Equal", 53, 55),
    Sketcher.Constraint("Equal", 51, 57),
    Sketcher.Constraint("Equal", 49, 59),
    Sketcher.Constraint("Equal", 47, 61),
    Sketcher.Constraint("Equal", 45, 63),
    Sketcher.Constraint("Equal", 61, 65),
    Sketcher.Constraint("Equal", 59, 67),
    Sketcher.Constraint("Equal", 57, 69),
    Sketcher.Constraint("Equal", 55, 71),
    Sketcher.Constraint("Symmetric", 1, 3, 37, 3, -1, 1),
    Sketcher.Constraint("Symmetric", 3, 3, 39, 3, -1, 1),
    Sketcher.Constraint("Symmetric", 7, 3, 43, 3, -1, 1),
    Sketcher.Constraint("Symmetric", 11, 3, 47, 3, -1, 1),
    Sketcher.Constraint("Symmetric", 15, 3, 51, 3, -1, 1),
    Sketcher.Constraint("Symmetric", 17, 3, 53, 3, -1, 1),
    Sketcher.Constraint("Symmetric", 21, 3, 57, 3, -1, 1),
    Sketcher.Constraint("Symmetric", 25, 3, 61, 3, -1, 1),
    Sketcher.Constraint("Symmetric", 29, 3, 65, 3, -1, 1),
    Sketcher.Constraint("Symmetric", 33, 3, 69, 3, -1, 1),
    Sketcher.Constraint("Symmetric", 15, 3, 21, 3, -2),
    Sketcher.Constraint("Symmetric", 11, 3, 25, 3, -2),
    Sketcher.Constraint("Symmetric", 7, 3, 29, 3, -2),
    Sketcher.Constraint("Symmetric", 3, 3, 33, 3, -2),
    Sketcher.Constraint("Parallel", 2, 16),
    Sketcher.Constraint("Perpendicular", 16, 20),
    Sketcher.Constraint("Parallel", 20, 34),
    Sketcher.Constraint("Perpendicular", 52, 56),
    Sketcher.Constraint("Parallel", 56, 70),
    Sketcher.Constraint("Horizontal", 1, 3, 35, 3),
    Sketcher.Constraint("Equal", 54, 0),
    Sketcher.Constraint("Equal", 58, 4),
    Sketcher.Constraint("Equal", 62, 8),
    Sketcher.Constraint("Equal", 66, 12),
    Sketcher.Constraint("Equal", 2, 16),
    Sketcher.Constraint("Radius", 1, Q("1 mm")),
    Sketcher.Constraint("Diameter", 72, Q("4.3 mm")),
    Sketcher.Constraint("Radius", 3, Q("0.8 mm")),
    Sketcher.Constraint("Radius", 5, Q("0.2 mm")),
    Sketcher.Constraint("Radius", 7, Q("0.6 mm")),
    Sketcher.Constraint("Radius", 9, Q("1.5 mm")),
    Sketcher.Constraint("DistanceX", 10, 2, 10, 1, Q("5.4 mm")),
    Sketcher.Constraint("DistanceX", -1, 1, 7, 2, Q("10 mm")),
    Sketcher.Constraint("DistanceX", 14, 1, 14, 2, Q("2.25 mm")),
    Sketcher.Constraint("DistanceX", -1, 1, 1, 3, Q("4.6 mm")),
    Sketcher.Constraint("DistanceX", 6, 1, 6, 2, Q("1.026851 mm")),
])
pocket1 = body4.newObject("PartDesign::Pocket", "Pocket")
pocket1.Profile = sketch2
pocket1.Length = 94.8
pocket1.Reversed = True
mirroring.Visibility = False
mirroring2.Visibility = False

doc.recompute()
